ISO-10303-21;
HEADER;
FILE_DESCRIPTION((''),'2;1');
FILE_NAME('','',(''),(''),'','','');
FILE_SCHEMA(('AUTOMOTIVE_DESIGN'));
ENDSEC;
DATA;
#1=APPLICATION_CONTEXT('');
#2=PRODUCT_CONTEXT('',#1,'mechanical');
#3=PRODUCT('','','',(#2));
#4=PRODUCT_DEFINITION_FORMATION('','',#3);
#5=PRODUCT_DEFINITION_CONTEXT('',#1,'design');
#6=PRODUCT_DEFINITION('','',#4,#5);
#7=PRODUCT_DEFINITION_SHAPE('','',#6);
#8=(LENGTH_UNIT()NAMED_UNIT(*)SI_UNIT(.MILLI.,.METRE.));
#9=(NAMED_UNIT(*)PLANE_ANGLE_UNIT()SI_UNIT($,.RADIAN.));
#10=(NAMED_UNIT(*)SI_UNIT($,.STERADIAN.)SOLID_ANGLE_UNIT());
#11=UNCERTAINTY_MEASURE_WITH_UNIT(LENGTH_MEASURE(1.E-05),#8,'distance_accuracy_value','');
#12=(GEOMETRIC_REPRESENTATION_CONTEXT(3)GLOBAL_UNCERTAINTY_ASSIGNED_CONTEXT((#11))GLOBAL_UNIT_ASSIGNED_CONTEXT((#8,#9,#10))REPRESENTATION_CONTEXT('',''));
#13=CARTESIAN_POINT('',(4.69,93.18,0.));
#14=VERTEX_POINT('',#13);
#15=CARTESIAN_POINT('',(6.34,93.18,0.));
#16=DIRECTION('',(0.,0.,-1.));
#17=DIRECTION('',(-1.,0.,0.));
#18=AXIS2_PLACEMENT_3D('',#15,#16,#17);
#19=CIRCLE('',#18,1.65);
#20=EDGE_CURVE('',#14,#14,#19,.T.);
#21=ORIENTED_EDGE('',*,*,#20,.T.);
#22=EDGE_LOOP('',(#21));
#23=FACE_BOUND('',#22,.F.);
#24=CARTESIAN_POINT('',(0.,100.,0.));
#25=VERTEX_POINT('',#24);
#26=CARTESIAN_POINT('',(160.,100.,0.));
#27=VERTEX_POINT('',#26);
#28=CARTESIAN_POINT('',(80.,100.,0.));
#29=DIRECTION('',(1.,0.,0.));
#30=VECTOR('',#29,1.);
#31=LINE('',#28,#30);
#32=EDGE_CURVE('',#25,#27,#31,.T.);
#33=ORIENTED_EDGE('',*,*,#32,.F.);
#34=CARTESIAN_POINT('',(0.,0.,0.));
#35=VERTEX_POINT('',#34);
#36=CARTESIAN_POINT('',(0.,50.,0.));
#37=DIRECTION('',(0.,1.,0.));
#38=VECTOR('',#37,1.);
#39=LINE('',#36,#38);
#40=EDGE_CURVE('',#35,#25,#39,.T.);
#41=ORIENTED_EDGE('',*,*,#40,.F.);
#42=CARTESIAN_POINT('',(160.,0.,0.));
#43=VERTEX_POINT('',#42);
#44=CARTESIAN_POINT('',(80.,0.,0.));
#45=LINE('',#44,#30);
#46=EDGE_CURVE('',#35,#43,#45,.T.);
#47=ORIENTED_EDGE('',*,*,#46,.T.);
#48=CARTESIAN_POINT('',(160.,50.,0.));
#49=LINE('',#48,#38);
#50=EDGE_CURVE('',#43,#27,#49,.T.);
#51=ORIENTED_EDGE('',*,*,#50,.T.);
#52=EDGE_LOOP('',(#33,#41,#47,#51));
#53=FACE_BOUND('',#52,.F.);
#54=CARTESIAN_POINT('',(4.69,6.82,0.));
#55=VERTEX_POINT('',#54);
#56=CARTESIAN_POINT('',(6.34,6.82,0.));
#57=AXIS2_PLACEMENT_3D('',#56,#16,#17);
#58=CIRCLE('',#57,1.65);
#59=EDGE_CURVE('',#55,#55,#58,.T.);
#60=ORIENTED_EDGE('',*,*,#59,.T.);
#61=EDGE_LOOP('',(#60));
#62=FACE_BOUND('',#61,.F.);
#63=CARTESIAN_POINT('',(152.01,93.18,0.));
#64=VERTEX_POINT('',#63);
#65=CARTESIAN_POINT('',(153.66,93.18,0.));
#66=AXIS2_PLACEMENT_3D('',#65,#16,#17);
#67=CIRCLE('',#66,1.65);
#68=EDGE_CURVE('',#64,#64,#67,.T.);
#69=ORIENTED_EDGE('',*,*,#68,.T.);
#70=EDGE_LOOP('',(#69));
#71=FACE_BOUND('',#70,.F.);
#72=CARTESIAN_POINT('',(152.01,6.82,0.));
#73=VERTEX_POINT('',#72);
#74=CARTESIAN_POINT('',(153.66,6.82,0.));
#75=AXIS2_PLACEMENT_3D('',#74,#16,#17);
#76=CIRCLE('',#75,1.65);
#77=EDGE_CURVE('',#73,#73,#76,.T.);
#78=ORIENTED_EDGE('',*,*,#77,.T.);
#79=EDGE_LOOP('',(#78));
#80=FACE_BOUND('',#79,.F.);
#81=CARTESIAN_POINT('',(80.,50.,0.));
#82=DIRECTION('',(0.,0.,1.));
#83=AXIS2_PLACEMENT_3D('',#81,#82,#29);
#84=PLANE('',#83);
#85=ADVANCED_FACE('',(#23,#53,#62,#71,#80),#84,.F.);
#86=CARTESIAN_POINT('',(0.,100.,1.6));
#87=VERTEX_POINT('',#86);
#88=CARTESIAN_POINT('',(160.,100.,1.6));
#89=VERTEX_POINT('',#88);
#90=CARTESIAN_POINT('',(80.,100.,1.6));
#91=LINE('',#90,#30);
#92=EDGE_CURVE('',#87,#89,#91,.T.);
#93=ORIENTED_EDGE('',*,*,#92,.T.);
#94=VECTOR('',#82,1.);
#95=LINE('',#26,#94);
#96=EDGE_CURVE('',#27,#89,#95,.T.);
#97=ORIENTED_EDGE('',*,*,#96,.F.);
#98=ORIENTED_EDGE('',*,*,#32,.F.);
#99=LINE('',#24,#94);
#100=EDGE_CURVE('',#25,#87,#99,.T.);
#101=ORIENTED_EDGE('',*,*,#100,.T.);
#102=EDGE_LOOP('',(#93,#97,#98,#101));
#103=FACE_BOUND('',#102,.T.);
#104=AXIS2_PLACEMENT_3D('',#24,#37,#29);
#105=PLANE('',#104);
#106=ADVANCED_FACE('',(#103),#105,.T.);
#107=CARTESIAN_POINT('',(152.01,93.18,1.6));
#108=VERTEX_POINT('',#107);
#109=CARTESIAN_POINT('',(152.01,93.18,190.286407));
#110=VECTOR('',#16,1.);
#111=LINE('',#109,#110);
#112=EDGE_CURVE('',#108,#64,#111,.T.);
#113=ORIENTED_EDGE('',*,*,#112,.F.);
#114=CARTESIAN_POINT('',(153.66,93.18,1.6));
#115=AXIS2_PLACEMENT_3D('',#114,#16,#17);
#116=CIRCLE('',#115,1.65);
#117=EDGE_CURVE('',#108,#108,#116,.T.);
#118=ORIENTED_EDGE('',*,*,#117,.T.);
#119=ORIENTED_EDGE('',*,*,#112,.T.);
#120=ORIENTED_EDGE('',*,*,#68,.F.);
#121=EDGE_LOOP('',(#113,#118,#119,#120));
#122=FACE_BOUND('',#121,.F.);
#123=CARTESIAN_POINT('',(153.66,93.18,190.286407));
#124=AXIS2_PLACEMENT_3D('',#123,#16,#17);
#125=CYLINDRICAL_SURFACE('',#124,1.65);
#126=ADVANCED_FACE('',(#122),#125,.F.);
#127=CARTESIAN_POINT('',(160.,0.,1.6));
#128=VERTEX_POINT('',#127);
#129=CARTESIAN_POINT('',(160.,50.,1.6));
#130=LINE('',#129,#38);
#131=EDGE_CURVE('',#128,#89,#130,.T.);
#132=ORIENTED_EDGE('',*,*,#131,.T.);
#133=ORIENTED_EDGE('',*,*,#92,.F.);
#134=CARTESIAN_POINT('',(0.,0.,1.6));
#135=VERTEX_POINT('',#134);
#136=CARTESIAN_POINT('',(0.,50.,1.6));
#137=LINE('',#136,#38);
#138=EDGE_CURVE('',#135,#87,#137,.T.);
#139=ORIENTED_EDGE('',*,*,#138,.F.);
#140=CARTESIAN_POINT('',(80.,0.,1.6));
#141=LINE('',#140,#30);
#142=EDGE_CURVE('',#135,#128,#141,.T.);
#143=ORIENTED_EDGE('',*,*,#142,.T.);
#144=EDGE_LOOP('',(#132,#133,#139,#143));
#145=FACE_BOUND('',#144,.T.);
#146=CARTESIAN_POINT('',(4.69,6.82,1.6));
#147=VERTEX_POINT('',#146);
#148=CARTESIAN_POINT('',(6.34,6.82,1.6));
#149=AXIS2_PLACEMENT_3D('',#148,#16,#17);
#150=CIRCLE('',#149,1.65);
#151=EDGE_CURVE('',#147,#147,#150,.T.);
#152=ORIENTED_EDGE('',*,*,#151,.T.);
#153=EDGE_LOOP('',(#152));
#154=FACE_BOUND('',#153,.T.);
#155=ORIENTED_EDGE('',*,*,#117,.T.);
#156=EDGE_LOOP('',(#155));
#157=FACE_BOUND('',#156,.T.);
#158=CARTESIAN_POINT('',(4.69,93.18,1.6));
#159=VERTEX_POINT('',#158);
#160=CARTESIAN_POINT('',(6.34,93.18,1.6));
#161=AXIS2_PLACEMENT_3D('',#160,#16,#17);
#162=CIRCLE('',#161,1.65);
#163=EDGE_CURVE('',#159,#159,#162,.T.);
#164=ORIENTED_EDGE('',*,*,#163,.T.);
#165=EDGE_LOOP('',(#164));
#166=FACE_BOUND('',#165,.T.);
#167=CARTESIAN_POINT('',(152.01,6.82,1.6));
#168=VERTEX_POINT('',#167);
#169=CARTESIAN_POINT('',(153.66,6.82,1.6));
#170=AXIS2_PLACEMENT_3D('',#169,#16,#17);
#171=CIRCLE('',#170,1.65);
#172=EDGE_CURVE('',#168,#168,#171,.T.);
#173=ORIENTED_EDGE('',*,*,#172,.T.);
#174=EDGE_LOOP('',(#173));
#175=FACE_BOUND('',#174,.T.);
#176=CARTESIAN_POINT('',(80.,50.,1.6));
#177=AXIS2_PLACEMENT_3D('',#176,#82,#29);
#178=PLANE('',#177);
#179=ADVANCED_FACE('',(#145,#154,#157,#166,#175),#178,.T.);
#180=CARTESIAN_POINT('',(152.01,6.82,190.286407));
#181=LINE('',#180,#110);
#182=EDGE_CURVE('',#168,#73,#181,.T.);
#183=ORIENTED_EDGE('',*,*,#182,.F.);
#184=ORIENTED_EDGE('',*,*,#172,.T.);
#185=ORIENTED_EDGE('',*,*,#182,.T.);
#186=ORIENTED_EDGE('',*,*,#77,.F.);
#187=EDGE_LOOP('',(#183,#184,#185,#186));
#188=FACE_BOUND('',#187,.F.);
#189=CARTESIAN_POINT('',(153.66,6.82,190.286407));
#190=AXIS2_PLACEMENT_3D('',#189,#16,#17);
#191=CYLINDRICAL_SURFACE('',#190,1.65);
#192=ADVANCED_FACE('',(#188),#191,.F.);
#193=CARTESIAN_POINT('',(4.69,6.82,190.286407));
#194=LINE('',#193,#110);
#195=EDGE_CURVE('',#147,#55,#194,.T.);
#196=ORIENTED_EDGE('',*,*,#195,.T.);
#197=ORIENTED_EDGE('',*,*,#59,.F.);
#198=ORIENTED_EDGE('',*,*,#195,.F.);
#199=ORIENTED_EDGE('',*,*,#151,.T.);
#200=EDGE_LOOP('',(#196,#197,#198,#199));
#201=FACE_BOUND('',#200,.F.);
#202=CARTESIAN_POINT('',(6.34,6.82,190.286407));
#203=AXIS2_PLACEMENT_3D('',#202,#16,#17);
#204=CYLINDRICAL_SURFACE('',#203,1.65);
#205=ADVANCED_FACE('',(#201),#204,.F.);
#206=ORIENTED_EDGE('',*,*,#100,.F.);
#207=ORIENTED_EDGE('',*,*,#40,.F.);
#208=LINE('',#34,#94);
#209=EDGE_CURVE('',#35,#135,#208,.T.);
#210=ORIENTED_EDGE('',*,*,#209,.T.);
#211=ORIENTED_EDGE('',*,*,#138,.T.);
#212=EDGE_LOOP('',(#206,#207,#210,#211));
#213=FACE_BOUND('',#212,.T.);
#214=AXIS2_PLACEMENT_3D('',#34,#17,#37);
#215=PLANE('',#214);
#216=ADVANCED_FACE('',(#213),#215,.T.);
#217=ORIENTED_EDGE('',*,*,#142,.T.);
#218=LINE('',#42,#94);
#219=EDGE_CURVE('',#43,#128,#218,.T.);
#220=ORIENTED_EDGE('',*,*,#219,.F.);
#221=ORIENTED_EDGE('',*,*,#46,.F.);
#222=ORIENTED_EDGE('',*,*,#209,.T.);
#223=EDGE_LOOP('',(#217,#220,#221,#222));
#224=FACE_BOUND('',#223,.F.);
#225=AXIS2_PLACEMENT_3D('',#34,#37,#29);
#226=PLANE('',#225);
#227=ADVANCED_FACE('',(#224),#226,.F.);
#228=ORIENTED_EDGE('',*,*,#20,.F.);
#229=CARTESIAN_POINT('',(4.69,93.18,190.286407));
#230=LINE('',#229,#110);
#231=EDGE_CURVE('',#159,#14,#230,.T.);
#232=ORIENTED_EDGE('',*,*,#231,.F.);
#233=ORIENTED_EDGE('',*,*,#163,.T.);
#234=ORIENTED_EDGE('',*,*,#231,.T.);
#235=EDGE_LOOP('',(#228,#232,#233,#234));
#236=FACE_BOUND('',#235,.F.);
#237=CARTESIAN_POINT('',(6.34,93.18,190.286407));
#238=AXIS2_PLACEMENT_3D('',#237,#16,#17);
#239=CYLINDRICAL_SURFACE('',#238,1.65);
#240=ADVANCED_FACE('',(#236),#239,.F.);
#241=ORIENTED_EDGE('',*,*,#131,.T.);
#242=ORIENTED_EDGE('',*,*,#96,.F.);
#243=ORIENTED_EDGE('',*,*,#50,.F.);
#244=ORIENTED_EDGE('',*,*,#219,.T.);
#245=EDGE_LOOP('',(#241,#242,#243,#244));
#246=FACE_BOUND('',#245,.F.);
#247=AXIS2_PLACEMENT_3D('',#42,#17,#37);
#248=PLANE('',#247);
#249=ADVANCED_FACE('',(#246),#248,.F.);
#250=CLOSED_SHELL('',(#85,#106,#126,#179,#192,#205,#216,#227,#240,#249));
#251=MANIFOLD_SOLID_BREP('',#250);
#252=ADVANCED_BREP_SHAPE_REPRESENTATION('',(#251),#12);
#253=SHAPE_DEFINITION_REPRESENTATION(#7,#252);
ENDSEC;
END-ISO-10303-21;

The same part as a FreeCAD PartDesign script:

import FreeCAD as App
import Part
import Sketcher

doc = App.newDocument("Part")
body = doc.addObject("PartDesign::Body", "Body")

sketch1 = body.newObject("Sketcher::SketchObject", "Sketch")
sketch1.AttachmentSupport = (doc.getObject("XY_Plane"), [""])
sketch1.MapMode = "FlatFace"
sketch1.addGeometry(Part.LineSegment(App.Vector(0, 100, 0), App.Vector(0, 0, 0)), False)
sketch1.addGeometry(Part.LineSegment(App.Vector(0, 0, 0), App.Vector(160, 0, 0)), False)
sketch1.addGeometry(Part.LineSegment(App.Vector(160, 0, 0), App.Vector(160, 100, 0)), False)
sketch1.addGeometry(Part.LineSegment(App.Vector(160, 100, 0), App.Vector(0, 100, 0)), False)
sketch1.addConstraint(Sketcher.Constraint("Coincident", 0, 2, 1, 1))
sketch1.addConstraint(Sketcher.Constraint("Coincident", 1, 2, 2, 1))
sketch1.addConstraint(Sketcher.Constraint("Coincident", 2, 2, 3, 1))
sketch1.addConstraint(Sketcher.Constraint("Coincident", 3, 2, 0, 1))
sketch1.addConstraint(Sketcher.Constraint("Vertical", 0))
sketch1.addConstraint(Sketcher.Constraint("Horizontal", 1))
sketch1.addConstraint(Sketcher.Constraint("Vertical", 2))
sketch1.addConstraint(Sketcher.Constraint("Horizontal", 3))
sketch1.addConstraint(Sketcher.Constraint("Coincident", 0, 2, -1, 1))
sketch1.addConstraint(Sketcher.Constraint("DistanceX", 1, 1, 1, 2, 160.0))
sketch1.addConstraint(Sketcher.Constraint("DistanceY", 0, 2, 0, 1, 100.0))
pad1 = body.newObject("PartDesign::Pad", "Pad")
pad1.Profile = sketch1
pad1.Length = 1.6

sketch2 = body.newObject("Sketcher::SketchObject", "Sketch001")
sketch2.AttachmentSupport = (doc.getObject("XY_Plane"), [""])
sketch2.MapMode = "FlatFace"
sketch2.AttachmentOffset = App.Placement(App.Vector(0, 0, 1.6), App.Rotation())
sketch2.addGeometry(Part.Circle(App.Vector(6.3, 93.2, 0), App.Vector(0, 0, 1), 1.6), False)
sketch2.addGeometry(Part.Circle(App.Vector(6.3, 6.8, 0), App.Vector(0, 0, 1), 1.6), False)
sketch2.addGeometry(Part.Circle(App.Vector(153.7, 6.8, 0), App.Vector(0, 0, 1), 1.6), False)
sketch2.addGeometry(Part.Circle(App.Vector(153.7, 93.2, 0), App.Vector(0, 0, 1), 1.6), False)
sketch2.addConstraint(Sketcher.Constraint("Equal", 0, 1))
sketch2.addConstraint(Sketcher.Constraint("Equal", 1, 2))
sketch2.addConstraint(Sketcher.Constraint("Equal", 2, 3))
sketch2.addConstraint(Sketcher.Constraint("Horizontal", 1, 3, 2, 3))
sketch2.addConstraint(Sketcher.Constraint("Horizontal", 0, 3, 3, 3))
sketch2.addConstraint(Sketcher.Constraint("Vertical", 0, 3, 1, 3))
sketch2.addConstraint(Sketcher.Constraint("Vertical", 2, 3, 3, 3))
sketch2.addConstraint(Sketcher.Constraint("Diameter", 0, 3.3))
sketch2.addConstraint(Sketcher.Constraint("DistanceX", -1, 1, 0, 3, 6.34))
sketch2.addConstraint(Sketcher.Constraint("DistanceY", -1, 1, 0, 3, 93.18))
sketch2.addConstraint(Sketcher.Constraint("DistanceY", -1, 1, 1, 3, 6.82))
sketch2.addConstraint(Sketcher.Constraint("DistanceX", -1, 1, 2, 3, 153.66))
doc.recompute()
hole = body.newObject("PartDesign::Hole", "Hole")
hole.Profile = sketch2
hole.ThreadType = "None"
hole.Diameter = 3.3
hole.DepthType = "ThroughAll"

doc.recompute()
